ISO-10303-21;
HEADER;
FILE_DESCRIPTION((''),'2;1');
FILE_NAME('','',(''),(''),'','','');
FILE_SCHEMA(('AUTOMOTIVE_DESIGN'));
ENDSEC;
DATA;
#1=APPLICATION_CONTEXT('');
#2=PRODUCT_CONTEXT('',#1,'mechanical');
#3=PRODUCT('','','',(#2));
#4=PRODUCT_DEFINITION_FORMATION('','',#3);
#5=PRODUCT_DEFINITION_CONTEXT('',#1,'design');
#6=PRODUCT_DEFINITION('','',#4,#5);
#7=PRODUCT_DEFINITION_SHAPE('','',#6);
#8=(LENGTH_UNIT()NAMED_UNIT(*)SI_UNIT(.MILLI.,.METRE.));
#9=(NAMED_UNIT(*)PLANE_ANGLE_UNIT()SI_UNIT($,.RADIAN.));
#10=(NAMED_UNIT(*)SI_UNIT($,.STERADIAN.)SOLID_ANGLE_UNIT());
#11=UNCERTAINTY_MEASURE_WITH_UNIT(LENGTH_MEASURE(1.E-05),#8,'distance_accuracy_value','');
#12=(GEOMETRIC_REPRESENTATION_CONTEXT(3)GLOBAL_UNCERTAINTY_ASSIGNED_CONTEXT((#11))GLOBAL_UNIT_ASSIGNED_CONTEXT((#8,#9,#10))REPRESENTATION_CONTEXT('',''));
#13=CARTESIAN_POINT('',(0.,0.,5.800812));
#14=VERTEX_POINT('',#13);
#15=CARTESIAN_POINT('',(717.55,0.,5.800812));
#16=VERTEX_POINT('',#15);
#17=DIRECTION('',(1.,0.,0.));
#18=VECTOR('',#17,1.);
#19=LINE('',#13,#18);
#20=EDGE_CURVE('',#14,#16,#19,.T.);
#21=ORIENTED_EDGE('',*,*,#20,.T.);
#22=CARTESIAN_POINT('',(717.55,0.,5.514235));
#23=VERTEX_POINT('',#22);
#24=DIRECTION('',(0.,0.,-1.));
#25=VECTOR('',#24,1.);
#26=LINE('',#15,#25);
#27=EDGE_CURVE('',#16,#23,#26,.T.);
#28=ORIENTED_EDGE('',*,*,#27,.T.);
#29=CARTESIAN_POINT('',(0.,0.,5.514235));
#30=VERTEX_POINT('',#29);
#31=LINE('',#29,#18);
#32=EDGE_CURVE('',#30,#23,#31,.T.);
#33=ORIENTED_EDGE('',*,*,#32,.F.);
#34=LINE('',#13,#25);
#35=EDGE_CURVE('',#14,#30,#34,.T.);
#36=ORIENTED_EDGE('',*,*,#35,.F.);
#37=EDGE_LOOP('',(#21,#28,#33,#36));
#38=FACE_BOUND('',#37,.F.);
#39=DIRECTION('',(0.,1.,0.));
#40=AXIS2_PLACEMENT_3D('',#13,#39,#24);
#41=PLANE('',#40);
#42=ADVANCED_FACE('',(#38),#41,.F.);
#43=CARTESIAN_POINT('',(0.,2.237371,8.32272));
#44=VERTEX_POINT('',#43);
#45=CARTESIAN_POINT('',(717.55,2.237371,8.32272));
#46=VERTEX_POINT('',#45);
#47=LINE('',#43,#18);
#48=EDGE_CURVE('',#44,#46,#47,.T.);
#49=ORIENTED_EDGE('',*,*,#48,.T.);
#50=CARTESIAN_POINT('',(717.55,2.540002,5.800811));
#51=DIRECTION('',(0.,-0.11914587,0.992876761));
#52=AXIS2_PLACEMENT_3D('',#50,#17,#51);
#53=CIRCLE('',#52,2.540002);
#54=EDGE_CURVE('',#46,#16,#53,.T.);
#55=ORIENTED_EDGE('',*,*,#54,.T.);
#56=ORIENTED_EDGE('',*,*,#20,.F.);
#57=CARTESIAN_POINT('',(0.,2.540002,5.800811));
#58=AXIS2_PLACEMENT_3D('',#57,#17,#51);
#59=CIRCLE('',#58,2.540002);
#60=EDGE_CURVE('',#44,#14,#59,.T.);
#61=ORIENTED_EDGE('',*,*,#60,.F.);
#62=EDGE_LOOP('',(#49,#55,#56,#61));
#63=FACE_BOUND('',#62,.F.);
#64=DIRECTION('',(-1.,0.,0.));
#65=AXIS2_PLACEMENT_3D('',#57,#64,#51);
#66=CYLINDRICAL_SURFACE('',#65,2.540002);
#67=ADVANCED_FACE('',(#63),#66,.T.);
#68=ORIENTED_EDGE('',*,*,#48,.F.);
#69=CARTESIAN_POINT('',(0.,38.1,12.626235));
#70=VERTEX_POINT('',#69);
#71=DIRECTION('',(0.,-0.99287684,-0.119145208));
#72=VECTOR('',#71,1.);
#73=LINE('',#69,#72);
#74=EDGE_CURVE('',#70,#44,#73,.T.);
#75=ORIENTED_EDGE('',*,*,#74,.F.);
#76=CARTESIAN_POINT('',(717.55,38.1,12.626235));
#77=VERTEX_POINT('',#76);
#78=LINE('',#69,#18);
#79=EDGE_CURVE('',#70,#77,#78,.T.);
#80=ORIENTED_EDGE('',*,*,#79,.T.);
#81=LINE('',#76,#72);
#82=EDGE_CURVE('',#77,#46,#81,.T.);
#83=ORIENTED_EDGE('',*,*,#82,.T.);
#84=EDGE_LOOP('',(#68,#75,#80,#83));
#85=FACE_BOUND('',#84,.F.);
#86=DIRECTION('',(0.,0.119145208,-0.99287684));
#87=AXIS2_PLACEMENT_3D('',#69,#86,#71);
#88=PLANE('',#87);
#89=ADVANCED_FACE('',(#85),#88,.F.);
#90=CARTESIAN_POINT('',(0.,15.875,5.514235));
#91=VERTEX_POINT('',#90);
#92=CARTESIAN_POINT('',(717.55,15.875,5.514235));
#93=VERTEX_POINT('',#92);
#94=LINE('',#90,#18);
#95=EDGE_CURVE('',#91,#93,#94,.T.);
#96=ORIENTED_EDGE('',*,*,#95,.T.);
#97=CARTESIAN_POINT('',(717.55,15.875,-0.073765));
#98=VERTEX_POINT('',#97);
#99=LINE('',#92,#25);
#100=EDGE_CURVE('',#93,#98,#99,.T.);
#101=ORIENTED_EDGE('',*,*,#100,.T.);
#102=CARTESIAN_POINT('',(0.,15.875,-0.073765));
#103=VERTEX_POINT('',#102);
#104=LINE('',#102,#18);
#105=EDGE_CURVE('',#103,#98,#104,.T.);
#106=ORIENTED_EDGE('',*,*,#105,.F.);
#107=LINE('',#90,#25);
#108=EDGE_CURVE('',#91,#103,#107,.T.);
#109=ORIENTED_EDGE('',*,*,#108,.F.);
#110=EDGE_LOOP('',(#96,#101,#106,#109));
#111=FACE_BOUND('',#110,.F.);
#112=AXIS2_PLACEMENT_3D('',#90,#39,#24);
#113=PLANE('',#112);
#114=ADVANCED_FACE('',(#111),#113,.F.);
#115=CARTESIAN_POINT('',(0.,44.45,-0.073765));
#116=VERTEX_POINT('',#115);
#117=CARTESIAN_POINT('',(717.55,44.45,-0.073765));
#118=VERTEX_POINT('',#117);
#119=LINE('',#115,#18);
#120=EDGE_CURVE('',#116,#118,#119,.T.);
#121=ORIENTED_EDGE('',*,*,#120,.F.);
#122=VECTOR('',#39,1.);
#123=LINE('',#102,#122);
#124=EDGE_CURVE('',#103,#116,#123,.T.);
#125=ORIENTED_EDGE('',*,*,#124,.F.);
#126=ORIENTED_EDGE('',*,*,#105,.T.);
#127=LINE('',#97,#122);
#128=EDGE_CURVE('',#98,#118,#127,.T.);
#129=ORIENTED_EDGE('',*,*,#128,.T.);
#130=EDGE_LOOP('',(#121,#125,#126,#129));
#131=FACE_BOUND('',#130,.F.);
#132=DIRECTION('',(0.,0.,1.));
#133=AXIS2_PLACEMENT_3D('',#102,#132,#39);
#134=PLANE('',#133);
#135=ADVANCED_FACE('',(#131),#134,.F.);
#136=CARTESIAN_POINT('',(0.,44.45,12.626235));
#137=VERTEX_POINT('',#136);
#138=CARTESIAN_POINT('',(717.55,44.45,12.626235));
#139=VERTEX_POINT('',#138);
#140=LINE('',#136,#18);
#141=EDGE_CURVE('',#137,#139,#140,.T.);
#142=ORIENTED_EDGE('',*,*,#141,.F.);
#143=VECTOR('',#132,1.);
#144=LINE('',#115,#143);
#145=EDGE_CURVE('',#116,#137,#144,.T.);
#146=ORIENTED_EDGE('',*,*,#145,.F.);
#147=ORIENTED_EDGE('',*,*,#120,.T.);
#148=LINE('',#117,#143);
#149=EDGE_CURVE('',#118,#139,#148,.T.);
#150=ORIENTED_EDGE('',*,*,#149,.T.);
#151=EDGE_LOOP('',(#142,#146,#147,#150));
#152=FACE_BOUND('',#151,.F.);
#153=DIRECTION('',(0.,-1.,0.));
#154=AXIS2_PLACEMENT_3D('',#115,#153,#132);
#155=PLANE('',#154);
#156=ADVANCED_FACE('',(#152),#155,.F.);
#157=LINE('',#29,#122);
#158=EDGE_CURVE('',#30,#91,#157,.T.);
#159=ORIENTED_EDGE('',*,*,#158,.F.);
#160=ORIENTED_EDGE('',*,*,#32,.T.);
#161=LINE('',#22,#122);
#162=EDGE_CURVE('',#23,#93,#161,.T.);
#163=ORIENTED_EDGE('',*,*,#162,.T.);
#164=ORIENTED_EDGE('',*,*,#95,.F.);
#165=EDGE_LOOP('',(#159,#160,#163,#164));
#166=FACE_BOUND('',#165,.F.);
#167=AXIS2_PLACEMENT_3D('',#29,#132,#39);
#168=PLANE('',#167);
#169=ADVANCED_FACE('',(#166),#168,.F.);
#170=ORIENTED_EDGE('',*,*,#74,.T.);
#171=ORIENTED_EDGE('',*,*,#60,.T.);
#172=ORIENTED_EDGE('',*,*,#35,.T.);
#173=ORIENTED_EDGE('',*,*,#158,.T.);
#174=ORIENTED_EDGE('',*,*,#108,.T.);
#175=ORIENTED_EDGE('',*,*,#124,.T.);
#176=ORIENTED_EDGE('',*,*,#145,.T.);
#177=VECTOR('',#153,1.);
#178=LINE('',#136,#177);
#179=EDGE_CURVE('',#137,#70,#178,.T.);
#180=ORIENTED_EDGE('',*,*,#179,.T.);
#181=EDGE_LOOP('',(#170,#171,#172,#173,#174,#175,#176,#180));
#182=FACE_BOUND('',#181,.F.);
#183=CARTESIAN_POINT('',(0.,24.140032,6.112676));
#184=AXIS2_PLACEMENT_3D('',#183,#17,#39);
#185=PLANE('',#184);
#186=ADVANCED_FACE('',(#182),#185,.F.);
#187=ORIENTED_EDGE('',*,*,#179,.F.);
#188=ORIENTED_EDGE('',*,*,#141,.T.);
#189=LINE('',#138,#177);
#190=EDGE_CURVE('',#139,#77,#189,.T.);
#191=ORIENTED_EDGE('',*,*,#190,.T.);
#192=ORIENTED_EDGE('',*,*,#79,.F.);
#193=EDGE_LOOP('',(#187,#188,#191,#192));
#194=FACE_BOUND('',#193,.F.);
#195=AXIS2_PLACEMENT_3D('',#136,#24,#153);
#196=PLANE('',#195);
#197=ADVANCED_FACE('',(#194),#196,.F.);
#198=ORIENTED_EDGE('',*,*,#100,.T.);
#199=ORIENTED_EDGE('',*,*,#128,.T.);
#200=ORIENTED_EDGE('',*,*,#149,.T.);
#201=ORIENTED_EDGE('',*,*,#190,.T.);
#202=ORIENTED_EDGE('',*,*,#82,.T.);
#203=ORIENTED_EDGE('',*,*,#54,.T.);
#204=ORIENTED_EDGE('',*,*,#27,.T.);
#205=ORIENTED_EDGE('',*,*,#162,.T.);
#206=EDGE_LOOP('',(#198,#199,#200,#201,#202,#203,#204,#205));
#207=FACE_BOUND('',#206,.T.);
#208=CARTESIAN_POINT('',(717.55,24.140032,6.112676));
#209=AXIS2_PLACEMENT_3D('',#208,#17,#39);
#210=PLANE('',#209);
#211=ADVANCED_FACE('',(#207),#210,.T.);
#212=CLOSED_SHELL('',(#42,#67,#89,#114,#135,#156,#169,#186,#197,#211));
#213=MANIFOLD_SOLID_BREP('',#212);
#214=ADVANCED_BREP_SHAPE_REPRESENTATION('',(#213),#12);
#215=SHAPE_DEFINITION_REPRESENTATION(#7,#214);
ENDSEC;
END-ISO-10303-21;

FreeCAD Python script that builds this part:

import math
import FreeCAD as App
import Part
import Sketcher
Q = App.Units.Quantity

doc = App.newDocument("Part")
body = doc.addObject("PartDesign::Body", "Body")

# Sketch on YZ plane
sketch1 = doc.addObject("Sketcher::SketchObject", "Sketch")
body.addObject(sketch1)
sketch1.AttachmentSupport = (doc.YZ_Plane, [""])
sketch1.MapMode = "FlatFace"
sketch1.addGeometry(Part.LineSegment(App.Vector(15.875, 5.514235, 0), App.Vector(15.875, -0.073765, 0)), False)
sketch1.addGeometry(Part.LineSegment(App.Vector(15.875, -0.073765, 0), App.Vector(44.45, -0.073765, 0)), False)
sketch1.addGeometry(Part.LineSegment(App.Vector(44.45, -0.073765, 0), App.Vector(44.45, 12.626235, 0)), False)
sketch1.addGeometry(Part.LineSegment(App.Vector(44.45, 12.626235, 0), App.Vector(38.1, 12.626235, 0)), False)
sketch1.addGeometry(Part.LineSegment(App.Vector(38.1, 12.626235, 0), App.Vector(2.237371, 8.32272, 0)), False)
sketch1.addGeometry(Part.ArcOfCircle(Part.Circle(App.Vector(2.540002, 5.800811, 0), App.Vector(0, 0, 1), 2.540002), math.radians(96.842811), math.radians(179.999985)), False)
sketch1.addGeometry(Part.LineSegment(App.Vector(0, 5.800812, 0), App.Vector(0, 5.514235, 0)), False)
sketch1.addGeometry(Part.LineSegment(App.Vector(0, 5.514235, 0), App.Vector(15.875, 5.514235, 0)), False)
sketch1.addConstraint(Sketcher.Constraint("Coincident", 0, 2, 1, 1))
sketch1.addConstraint(Sketcher.Constraint("Coincident", 1, 2, 2, 1))
sketch1.addConstraint(Sketcher.Constraint("Coincident", 2, 2, 3, 1))
sketch1.addConstraint(Sketcher.Constraint("Coincident", 3, 2, 4, 1))
sketch1.addConstraint(Sketcher.Constraint("Tangent", 4, 2, 5, 1))
sketch1.addConstraint(Sketcher.Constraint("Tangent", 5, 2, 6, 1))
sketch1.addConstraint(Sketcher.Constraint("Coincident", 6, 2, 7, 1))
sketch1.addConstraint(Sketcher.Constraint("Coincident", 7, 2, 0, 1))
sketch1.addConstraint(Sketcher.Constraint("Vertical", 0))
sketch1.addConstraint(Sketcher.Constraint("Horizontal", 1))
sketch1.addConstraint(Sketcher.Constraint("Vertical", 2))
sketch1.addConstraint(Sketcher.Constraint("Horizontal", 3))
sketch1.addConstraint(Sketcher.Constraint("Vertical", 6))
sketch1.addConstraint(Sketcher.Constraint("Horizontal", 7))
sketch1.addConstraint(Sketcher.Constraint("PointOnObject", 5, 2, -2))
sketch1.addConstraint(Sketcher.Constraint("Radius", 5, Q("0.1000001 in")))
sketch1.addConstraint(Sketcher.Constraint("DistanceY", 2, 1, 2, 2, Q("0.5 in")))
sketch1.addConstraint(Sketcher.Constraint("DistanceX", 3, 2, 3, 1, Q("0.25 in")))
sketch1.addConstraint(Sketcher.Constraint("DistanceY", 0, 2, 0, 1, Q("0.22 in")))
sketch1.addConstraint(Sketcher.Constraint("DistanceX", -1, 1, 3, 2, Q("1.5 in")))
sketch1.addConstraint(Sketcher.Constraint("DistanceX", 1, 1, 1, 2, Q("1.125 in")))
sketch1.addConstraint(Sketcher.Constraint("DistanceY", 6, 2, 6, 1, 0.286577))
sketch1.addConstraint(Sketcher.Constraint("DistanceY", -1, 1, 5, 3, 5.800811))
pad1 = doc.addObject("PartDesign::Pad", "Pad")
body.addObject(pad1)
pad1.Profile = sketch1
pad1.Length = Q("28.25 in")

doc.recompute()
